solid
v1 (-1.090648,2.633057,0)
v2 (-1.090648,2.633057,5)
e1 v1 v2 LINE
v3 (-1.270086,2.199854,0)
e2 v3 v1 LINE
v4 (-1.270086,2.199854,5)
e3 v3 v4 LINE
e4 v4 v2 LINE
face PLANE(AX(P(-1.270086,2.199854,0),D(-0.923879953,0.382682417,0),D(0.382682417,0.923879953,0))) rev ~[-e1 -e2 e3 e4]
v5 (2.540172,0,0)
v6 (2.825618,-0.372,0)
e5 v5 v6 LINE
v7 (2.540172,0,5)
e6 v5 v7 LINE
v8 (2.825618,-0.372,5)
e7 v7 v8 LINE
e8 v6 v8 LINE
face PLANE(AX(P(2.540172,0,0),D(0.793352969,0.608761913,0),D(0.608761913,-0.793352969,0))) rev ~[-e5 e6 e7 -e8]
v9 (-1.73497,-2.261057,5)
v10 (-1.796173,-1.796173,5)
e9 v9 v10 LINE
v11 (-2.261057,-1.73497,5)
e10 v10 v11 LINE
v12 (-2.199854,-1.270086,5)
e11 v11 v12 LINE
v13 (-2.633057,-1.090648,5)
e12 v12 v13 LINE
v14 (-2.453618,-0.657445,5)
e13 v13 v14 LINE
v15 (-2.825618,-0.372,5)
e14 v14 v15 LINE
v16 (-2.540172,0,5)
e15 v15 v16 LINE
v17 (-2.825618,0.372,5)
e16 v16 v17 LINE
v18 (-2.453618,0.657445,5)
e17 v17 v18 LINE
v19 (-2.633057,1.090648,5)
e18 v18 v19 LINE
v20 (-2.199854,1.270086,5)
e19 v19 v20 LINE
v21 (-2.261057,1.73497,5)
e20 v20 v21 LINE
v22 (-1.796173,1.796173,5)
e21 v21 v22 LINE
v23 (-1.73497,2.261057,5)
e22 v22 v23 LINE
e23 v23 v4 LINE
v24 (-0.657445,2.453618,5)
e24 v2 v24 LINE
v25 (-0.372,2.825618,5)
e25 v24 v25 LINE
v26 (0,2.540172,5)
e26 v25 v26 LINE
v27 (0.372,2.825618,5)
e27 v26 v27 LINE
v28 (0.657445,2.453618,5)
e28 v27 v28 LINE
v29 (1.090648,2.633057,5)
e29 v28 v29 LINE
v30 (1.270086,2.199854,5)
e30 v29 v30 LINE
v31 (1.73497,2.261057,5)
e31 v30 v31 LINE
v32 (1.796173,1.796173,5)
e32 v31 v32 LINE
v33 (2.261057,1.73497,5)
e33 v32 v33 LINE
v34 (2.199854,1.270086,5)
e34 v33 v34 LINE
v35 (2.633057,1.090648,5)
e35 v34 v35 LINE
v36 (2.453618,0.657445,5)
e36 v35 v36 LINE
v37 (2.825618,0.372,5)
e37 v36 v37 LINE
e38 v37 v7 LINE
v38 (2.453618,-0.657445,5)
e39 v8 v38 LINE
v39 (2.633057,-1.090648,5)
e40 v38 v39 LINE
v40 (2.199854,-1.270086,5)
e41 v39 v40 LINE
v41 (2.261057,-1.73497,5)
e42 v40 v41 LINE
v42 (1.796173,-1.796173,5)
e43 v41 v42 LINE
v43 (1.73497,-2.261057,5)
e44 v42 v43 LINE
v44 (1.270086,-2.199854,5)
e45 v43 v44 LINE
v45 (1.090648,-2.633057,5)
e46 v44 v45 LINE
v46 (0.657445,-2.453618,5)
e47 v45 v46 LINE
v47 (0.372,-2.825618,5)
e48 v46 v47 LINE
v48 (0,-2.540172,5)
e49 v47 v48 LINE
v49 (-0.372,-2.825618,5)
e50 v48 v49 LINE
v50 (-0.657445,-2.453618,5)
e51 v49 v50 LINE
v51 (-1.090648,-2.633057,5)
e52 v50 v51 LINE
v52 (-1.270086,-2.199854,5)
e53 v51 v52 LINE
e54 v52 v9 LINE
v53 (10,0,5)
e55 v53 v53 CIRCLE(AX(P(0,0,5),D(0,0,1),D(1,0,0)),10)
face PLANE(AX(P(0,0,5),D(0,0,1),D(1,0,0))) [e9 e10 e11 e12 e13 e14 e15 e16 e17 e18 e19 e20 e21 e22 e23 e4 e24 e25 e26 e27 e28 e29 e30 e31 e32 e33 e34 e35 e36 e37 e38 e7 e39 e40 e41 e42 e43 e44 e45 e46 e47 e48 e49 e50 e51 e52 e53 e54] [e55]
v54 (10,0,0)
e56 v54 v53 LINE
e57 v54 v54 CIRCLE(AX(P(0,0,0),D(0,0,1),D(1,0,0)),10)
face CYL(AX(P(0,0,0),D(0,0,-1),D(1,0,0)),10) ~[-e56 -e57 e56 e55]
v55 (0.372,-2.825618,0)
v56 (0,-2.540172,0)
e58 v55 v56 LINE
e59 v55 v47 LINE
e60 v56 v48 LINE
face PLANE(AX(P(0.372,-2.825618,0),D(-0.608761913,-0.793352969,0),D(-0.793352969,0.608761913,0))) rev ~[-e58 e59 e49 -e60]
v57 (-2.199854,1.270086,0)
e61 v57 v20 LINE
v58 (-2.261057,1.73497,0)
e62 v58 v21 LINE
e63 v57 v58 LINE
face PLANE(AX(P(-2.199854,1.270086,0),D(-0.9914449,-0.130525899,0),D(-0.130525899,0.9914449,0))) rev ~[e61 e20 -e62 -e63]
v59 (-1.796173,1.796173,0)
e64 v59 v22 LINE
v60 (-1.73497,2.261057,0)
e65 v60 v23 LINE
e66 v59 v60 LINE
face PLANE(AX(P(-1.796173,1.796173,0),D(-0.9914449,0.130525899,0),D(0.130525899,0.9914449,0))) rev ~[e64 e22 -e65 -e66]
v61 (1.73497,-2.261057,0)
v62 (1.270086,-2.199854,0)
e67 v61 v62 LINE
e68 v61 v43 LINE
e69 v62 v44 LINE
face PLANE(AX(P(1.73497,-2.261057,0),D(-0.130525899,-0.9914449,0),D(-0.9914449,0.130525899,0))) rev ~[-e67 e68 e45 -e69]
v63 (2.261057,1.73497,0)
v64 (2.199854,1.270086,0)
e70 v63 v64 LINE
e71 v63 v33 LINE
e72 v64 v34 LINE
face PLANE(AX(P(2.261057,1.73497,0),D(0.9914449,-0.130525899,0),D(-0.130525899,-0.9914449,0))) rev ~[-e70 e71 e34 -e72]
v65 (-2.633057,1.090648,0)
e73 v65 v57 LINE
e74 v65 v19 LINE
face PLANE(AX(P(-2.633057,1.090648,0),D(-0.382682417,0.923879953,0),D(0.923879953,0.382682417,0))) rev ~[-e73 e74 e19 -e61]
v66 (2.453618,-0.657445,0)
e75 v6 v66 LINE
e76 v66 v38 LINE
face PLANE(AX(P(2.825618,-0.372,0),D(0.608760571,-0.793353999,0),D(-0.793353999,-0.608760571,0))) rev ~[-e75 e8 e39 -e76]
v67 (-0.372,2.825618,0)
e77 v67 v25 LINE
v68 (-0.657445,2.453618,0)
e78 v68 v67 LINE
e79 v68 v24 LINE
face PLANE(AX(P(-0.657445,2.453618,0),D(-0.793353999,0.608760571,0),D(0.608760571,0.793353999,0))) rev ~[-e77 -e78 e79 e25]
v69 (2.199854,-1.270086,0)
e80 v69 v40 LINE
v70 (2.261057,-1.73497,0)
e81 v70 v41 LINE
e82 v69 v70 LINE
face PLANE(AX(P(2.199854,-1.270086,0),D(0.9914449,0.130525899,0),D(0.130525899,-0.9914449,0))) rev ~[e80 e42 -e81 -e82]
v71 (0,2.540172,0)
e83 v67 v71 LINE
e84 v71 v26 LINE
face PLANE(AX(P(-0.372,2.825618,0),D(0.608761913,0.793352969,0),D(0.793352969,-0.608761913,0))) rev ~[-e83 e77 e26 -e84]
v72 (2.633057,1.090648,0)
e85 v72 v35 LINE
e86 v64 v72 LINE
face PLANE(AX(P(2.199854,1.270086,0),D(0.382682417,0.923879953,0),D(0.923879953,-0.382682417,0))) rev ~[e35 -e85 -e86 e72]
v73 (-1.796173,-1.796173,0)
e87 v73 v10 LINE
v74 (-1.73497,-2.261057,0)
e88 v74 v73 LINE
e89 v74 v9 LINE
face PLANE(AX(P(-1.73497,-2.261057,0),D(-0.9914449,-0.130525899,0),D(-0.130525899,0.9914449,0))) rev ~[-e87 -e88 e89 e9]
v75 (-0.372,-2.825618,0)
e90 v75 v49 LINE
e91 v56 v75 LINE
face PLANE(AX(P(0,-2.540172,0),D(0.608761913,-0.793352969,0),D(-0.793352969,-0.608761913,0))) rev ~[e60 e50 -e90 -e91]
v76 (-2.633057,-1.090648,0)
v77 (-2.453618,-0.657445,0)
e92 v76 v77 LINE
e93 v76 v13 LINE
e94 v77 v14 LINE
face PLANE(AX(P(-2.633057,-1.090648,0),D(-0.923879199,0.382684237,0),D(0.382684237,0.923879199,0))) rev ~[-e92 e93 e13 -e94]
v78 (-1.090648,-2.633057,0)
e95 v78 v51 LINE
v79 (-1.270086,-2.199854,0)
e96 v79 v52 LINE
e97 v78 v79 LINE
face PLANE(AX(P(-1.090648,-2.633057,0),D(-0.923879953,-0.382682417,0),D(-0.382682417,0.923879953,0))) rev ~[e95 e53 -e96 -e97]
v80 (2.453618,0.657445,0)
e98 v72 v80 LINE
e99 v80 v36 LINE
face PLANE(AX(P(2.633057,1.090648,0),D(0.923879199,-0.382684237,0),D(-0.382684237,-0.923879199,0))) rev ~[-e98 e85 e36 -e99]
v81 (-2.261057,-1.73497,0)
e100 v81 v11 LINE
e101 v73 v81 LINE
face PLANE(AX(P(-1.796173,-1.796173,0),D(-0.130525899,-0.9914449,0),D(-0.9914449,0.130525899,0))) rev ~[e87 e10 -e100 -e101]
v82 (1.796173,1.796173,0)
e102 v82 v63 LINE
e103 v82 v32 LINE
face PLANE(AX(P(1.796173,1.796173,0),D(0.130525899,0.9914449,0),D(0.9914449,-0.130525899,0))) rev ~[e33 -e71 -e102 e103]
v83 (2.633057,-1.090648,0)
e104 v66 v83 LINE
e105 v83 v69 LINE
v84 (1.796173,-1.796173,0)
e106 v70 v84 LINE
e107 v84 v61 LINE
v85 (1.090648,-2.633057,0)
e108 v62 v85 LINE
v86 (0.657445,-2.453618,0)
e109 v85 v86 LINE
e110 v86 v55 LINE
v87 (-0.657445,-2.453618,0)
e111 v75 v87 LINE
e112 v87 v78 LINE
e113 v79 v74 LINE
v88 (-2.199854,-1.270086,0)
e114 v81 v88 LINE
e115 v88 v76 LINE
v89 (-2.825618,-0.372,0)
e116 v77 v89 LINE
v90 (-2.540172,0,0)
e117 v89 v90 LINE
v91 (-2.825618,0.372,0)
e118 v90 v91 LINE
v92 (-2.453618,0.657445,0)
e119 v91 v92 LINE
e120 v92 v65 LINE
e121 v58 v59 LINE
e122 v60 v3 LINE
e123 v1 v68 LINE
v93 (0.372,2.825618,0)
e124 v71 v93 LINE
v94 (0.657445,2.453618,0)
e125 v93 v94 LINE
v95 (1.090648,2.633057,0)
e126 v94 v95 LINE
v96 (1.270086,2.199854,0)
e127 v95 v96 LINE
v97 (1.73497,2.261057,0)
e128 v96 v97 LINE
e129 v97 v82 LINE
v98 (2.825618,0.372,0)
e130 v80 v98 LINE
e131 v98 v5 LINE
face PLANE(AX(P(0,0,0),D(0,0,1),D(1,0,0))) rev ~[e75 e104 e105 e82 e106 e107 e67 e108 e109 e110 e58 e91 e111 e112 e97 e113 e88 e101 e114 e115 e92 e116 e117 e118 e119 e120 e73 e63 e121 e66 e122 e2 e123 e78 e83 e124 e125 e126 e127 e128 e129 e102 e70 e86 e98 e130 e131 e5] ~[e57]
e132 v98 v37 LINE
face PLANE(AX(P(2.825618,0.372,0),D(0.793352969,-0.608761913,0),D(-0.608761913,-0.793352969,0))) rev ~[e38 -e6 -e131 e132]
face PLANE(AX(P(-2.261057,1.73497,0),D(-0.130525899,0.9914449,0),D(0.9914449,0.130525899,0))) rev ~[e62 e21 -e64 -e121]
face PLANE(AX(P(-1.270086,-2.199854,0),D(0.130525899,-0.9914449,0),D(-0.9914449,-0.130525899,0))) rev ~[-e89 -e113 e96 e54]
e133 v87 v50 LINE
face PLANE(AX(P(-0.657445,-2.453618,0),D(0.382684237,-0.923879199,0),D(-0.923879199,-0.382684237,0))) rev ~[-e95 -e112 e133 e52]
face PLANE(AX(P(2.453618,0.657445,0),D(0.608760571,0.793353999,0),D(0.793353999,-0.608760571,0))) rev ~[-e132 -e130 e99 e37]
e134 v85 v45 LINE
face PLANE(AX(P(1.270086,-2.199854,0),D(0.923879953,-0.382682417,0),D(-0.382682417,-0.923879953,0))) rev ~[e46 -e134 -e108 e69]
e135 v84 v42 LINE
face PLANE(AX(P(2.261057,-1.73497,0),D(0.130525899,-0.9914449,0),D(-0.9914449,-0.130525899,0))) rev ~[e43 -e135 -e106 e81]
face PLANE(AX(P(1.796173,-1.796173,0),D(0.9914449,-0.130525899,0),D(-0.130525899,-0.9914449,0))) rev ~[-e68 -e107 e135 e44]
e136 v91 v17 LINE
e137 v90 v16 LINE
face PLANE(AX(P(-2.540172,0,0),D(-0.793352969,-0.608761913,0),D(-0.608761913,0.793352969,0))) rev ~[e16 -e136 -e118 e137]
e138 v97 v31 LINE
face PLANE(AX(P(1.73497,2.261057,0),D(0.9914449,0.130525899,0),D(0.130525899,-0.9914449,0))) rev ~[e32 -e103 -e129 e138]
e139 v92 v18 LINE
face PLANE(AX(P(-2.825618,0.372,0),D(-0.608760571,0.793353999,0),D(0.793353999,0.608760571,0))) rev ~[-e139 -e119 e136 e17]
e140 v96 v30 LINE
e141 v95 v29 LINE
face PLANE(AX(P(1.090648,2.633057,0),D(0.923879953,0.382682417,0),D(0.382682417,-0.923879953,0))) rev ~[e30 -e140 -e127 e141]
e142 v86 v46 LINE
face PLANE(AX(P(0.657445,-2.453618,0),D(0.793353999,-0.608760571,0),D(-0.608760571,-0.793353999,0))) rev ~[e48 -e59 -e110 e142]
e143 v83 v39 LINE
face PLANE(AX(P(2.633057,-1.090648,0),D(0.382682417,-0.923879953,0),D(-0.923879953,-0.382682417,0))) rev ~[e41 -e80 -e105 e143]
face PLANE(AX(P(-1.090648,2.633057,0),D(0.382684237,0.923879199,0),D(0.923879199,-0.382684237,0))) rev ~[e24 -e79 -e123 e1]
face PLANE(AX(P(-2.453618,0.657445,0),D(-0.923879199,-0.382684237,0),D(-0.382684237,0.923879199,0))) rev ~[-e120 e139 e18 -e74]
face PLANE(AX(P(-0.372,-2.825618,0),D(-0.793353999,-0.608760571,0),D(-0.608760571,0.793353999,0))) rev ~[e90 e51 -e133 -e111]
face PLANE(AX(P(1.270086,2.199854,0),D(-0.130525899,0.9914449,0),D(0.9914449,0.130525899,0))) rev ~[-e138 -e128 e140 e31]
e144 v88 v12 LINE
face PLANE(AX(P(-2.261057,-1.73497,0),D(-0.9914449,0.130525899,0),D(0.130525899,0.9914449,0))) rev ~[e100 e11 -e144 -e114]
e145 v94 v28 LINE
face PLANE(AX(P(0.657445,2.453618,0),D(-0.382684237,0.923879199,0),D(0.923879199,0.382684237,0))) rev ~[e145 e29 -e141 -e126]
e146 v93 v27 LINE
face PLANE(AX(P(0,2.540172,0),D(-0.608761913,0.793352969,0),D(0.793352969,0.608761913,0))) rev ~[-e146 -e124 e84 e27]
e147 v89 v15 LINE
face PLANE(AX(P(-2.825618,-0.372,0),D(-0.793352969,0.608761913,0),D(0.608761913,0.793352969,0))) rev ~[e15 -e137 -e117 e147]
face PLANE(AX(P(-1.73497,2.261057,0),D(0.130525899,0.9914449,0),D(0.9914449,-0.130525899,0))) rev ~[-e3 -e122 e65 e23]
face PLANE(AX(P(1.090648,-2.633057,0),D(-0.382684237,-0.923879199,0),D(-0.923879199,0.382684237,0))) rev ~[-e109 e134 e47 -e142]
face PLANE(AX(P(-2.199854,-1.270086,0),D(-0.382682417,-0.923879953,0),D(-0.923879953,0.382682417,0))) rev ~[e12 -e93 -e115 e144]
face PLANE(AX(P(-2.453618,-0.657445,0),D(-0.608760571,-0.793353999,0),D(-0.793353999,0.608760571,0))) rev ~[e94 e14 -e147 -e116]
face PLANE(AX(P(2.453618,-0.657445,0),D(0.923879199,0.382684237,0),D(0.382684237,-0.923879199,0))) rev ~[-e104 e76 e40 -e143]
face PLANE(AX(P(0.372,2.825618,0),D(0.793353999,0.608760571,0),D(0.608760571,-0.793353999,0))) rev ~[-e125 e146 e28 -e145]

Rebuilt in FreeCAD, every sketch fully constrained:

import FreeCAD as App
import Part
import Sketcher
from FreeCAD import Vector
Q = App.Units.Quantity


def add_polygon(sketch, points):
    """Adds a closed chain of lines whose ends are joined by coincident constraints."""
    first, n = sketch.GeometryCount, len(points)
    for a, b in zip(points, points[1:] + points[:1]):
        sketch.addGeometry(Part.LineSegment(App.Vector(*a, 0), App.Vector(*b, 0)), False)
    for i in range(n):
        sketch.addConstraint(Sketcher.Constraint("Coincident", first + i, 2, first + (i + 1) % n, 1))

doc = App.newDocument("Part")
params = doc.addObject("Spreadsheet::Sheet", "Params")
for row, (alias, value) in enumerate([
    ("sketch1_diameter", "20 mm"),
    ("pad1_length", "5 mm"),
], start=1):
    params.set(f"A{row}", alias)
    params.set(f"B{row}", "=" + value)
    params.setAlias(f"B{row}", alias)

body = doc.addObject("PartDesign::Body", "Body")

sketch1 = body.newObject("Sketcher::SketchObject", "Sketch")
sketch1.AttachmentSupport = (doc.getObject("XY_Plane"), [""])
sketch1.MapMode = "FlatFace"
sketch1.addGeometry(Part.Circle(Vector(0, 0, 0), Vector(0, 0, 1), 10), False)
add_polygon(sketch1, [(-0.657445, 2.453618), (-0.372, 2.825618), (0, 2.540172), (0.372, 2.825618), (0.657445, 2.453618), (1.090648, 2.633057), (1.270086, 2.199854), (1.73497, 2.261057), (1.796173, 1.796173), (2.261057, 1.73497), (2.199854, 1.270086), (2.633057, 1.090648), (2.453618, 0.657445), (2.825618, 0.372), (2.540172, 0), (2.825618, -0.372), (2.453618, -0.657445), (2.633057, -1.090648), (2.199854, -1.270086), (2.261057, -1.73497), (1.796173, -1.796173), (1.73497, -2.261057), (1.270086, -2.199854), (1.090648, -2.633057), (0.657445, -2.453618), (0.372, -2.825618), (0, -2.540172), (-0.372, -2.825618), (-0.657445, -2.453618), (-1.090648, -2.633057), (-1.270086, -2.199854), (-1.73497, -2.261057), (-1.796173, -1.796173), (-2.261057, -1.73497), (-2.199854, -1.270086), (-2.633057, -1.090648), (-2.453618, -0.657445), (-2.825618, -0.372), (-2.540172, 0), (-2.825618, 0.372), (-2.453618, 0.657445), (-2.633057, 1.090648), (-2.199854, 1.270086), (-2.261057, 1.73497), (-1.796173, 1.796173), (-1.73497, 2.261057), (-1.270086, 2.199854), (-1.090648, 2.633057)])
sketch1.addConstraint(Sketcher.Constraint("Coincident", 0, 3, -1, 1))
sketch1.addConstraint(Sketcher.Constraint("Symmetric", 1, 2, 25, 2, -1, 1))
sketch1.addConstraint(Sketcher.Constraint("Symmetric", 2, 2, 26, 2, -1, 1))
sketch1.addConstraint(Sketcher.Constraint("Symmetric", 3, 2, 27, 2, -1, 1))
sketch1.addConstraint(Sketcher.Constraint("Symmetric", 4, 2, 28, 2, -1, 1))
sketch1.addConstraint(Sketcher.Constraint("Symmetric", 5, 2, 29, 2, -1, 1))
sketch1.addConstraint(Sketcher.Constraint("Symmetric", 6, 2, 30, 2, -1, 1))
sketch1.addConstraint(Sketcher.Constraint("Symmetric", 7, 2, 31, 2, -1, 1))
sketch1.addConstraint(Sketcher.Constraint("Symmetric", 8, 2, 32, 2, -1, 1))
sketch1.addConstraint(Sketcher.Constraint("Symmetric", 9, 2, 33, 2, -1, 1))
sketch1.addConstraint(Sketcher.Constraint("Symmetric", 10, 2, 34, 2, -1, 1))
sketch1.addConstraint(Sketcher.Constraint("Symmetric", 11, 2, 35, 2, -1, 1))
sketch1.addConstraint(Sketcher.Constraint("Symmetric", 12, 2, 36, 2, -1, 1))
sketch1.addConstraint(Sketcher.Constraint("Symmetric", 13, 2, 37, 2, -1, 1))
sketch1.addConstraint(Sketcher.Constraint("Symmetric", 14, 2, 38, 2, -1, 1))
sketch1.addConstraint(Sketcher.Constraint("Symmetric", 15, 2, 39, 2, -1, 1))
sketch1.addConstraint(Sketcher.Constraint("Symmetric", 16, 2, 40, 2, -1, 1))
sketch1.addConstraint(Sketcher.Constraint("Symmetric", 17, 2, 41, 2, -1, 1))
sketch1.addConstraint(Sketcher.Constraint("Symmetric", 18, 2, 42, 2, -1, 1))
sketch1.addConstraint(Sketcher.Constraint("Symmetric", 19, 2, 43, 2, -1, 1))
sketch1.addConstraint(Sketcher.Constraint("Symmetric", 20, 2, 44, 2, -1, 1))
sketch1.addConstraint(Sketcher.Constraint("Symmetric", 21, 2, 45, 2, -1, 1))
sketch1.addConstraint(Sketcher.Constraint("Symmetric", 22, 2, 46, 2, -1, 1))
sketch1.addConstraint(Sketcher.Constraint("Symmetric", 23, 2, 47, 2, -1, 1))
sketch1.addConstraint(Sketcher.Constraint("Symmetric", 24, 2, 48, 2, -1, 1))
sketch1.addConstraint(Sketcher.Constraint("Symmetric", 1, 2, 3, 2, -2))
sketch1.addConstraint(Sketcher.Constraint("Symmetric", 24, 2, 28, 2, -2))
sketch1.addConstraint(Sketcher.Constraint("Symmetric", 23, 2, 29, 2, -2))
sketch1.addConstraint(Sketcher.Constraint("Symmetric", 22, 2, 30, 2, -2))
sketch1.addConstraint(Sketcher.Constraint("Symmetric", 21, 2, 31, 2, -2))
sketch1.addConstraint(Sketcher.Constraint("Symmetric", 20, 2, 32, 2, -2))
sketch1.addConstraint(Sketcher.Constraint("Symmetric", 19, 2, 33, 2, -2))
sketch1.addConstraint(Sketcher.Constraint("Symmetric", 18, 2, 34, 2, -2))
sketch1.addConstraint(Sketcher.Constraint("Symmetric", 17, 2, 35, 2, -2))
sketch1.addConstraint(Sketcher.Constraint("Symmetric", 16, 2, 36, 2, -2))
sketch1.addConstraint(Sketcher.Constraint("Symmetric", 15, 2, 37, 2, -2))
sketch1.addConstraint(Sketcher.Constraint("PointOnObject", 2, 2, -2))
sketch1.addConstraint(Sketcher.Constraint("PointOnObject", 14, 2, -1))
sketch1.addConstraint(Sketcher.Constraint("Perpendicular", 1, 2))
sketch1.addConstraint(Sketcher.Constraint("Perpendicular", 5, 6))
sketch1.addConstraint(Sketcher.Constraint("Perpendicular", 7, 8))
sketch1.addConstraint(Sketcher.Constraint("Perpendicular", 9, 10))
sketch1.addConstraint(Sketcher.Constraint("Perpendicular", 11, 12))
sketch1.addConstraint(Sketcher.Constraint("Parallel", 2, 13))
sketch1.addConstraint(Sketcher.Constraint("Perpendicular", 13, 14))
sketch1.addConstraint(Sketcher.Constraint("Parallel", 6, 17))
sketch1.addConstraint(Sketcher.Constraint("Parallel", 8, 19))
sketch1.addConstraint(Sketcher.Constraint("Equal", 1, 2))
sketch1.addConstraint(Sketcher.Constraint("Equal", 4, 5))
sketch1.addConstraint(Sketcher.Constraint("Equal", 5, 6))
sketch1.addConstraint(Sketcher.Constraint("Equal", 6, 7))
sketch1.addConstraint(Sketcher.Constraint("Equal", 7, 8))
sketch1.addConstraint(Sketcher.Constraint("Equal", 8, 9))
sketch1.addConstraint(Sketcher.Constraint("Equal", 9, 10))
sketch1.addConstraint(Sketcher.Constraint("Equal", 10, 11))
sketch1.addConstraint(Sketcher.Constraint("Equal", 11, 12))
sketch1.addConstraint(Sketcher.Constraint("Equal", 12, 13))
sketch1.addConstraint(Sketcher.Constraint("Equal", 13, 14))
sketch1.addConstraint(Sketcher.Constraint("Diameter", 0, Q("20 mm")))
sketch1.addConstraint(Sketcher.Constraint("Angle", 7, Q("7.499983 deg")))
sketch1.addConstraint(Sketcher.Constraint("DistanceX", 1, 2, -1, 1, Q("0.372 mm")))
sketch1.addConstraint(Sketcher.Constraint("DistanceY", 7, 2, 5, 2, Q("0.372 mm")))
sketch1.addConstraint(Sketcher.Constraint("DistanceY", -1, 1, 1, 2, Q("2.825618 mm")))
sketch1.setExpression("Constraints[106]", "Params.sketch1_diameter")
pad1 = body.newObject("PartDesign::Pad", "Pad")
pad1.Profile = sketch1
pad1.setExpression("Length", "Params.pad1_length")

doc.recompute()
